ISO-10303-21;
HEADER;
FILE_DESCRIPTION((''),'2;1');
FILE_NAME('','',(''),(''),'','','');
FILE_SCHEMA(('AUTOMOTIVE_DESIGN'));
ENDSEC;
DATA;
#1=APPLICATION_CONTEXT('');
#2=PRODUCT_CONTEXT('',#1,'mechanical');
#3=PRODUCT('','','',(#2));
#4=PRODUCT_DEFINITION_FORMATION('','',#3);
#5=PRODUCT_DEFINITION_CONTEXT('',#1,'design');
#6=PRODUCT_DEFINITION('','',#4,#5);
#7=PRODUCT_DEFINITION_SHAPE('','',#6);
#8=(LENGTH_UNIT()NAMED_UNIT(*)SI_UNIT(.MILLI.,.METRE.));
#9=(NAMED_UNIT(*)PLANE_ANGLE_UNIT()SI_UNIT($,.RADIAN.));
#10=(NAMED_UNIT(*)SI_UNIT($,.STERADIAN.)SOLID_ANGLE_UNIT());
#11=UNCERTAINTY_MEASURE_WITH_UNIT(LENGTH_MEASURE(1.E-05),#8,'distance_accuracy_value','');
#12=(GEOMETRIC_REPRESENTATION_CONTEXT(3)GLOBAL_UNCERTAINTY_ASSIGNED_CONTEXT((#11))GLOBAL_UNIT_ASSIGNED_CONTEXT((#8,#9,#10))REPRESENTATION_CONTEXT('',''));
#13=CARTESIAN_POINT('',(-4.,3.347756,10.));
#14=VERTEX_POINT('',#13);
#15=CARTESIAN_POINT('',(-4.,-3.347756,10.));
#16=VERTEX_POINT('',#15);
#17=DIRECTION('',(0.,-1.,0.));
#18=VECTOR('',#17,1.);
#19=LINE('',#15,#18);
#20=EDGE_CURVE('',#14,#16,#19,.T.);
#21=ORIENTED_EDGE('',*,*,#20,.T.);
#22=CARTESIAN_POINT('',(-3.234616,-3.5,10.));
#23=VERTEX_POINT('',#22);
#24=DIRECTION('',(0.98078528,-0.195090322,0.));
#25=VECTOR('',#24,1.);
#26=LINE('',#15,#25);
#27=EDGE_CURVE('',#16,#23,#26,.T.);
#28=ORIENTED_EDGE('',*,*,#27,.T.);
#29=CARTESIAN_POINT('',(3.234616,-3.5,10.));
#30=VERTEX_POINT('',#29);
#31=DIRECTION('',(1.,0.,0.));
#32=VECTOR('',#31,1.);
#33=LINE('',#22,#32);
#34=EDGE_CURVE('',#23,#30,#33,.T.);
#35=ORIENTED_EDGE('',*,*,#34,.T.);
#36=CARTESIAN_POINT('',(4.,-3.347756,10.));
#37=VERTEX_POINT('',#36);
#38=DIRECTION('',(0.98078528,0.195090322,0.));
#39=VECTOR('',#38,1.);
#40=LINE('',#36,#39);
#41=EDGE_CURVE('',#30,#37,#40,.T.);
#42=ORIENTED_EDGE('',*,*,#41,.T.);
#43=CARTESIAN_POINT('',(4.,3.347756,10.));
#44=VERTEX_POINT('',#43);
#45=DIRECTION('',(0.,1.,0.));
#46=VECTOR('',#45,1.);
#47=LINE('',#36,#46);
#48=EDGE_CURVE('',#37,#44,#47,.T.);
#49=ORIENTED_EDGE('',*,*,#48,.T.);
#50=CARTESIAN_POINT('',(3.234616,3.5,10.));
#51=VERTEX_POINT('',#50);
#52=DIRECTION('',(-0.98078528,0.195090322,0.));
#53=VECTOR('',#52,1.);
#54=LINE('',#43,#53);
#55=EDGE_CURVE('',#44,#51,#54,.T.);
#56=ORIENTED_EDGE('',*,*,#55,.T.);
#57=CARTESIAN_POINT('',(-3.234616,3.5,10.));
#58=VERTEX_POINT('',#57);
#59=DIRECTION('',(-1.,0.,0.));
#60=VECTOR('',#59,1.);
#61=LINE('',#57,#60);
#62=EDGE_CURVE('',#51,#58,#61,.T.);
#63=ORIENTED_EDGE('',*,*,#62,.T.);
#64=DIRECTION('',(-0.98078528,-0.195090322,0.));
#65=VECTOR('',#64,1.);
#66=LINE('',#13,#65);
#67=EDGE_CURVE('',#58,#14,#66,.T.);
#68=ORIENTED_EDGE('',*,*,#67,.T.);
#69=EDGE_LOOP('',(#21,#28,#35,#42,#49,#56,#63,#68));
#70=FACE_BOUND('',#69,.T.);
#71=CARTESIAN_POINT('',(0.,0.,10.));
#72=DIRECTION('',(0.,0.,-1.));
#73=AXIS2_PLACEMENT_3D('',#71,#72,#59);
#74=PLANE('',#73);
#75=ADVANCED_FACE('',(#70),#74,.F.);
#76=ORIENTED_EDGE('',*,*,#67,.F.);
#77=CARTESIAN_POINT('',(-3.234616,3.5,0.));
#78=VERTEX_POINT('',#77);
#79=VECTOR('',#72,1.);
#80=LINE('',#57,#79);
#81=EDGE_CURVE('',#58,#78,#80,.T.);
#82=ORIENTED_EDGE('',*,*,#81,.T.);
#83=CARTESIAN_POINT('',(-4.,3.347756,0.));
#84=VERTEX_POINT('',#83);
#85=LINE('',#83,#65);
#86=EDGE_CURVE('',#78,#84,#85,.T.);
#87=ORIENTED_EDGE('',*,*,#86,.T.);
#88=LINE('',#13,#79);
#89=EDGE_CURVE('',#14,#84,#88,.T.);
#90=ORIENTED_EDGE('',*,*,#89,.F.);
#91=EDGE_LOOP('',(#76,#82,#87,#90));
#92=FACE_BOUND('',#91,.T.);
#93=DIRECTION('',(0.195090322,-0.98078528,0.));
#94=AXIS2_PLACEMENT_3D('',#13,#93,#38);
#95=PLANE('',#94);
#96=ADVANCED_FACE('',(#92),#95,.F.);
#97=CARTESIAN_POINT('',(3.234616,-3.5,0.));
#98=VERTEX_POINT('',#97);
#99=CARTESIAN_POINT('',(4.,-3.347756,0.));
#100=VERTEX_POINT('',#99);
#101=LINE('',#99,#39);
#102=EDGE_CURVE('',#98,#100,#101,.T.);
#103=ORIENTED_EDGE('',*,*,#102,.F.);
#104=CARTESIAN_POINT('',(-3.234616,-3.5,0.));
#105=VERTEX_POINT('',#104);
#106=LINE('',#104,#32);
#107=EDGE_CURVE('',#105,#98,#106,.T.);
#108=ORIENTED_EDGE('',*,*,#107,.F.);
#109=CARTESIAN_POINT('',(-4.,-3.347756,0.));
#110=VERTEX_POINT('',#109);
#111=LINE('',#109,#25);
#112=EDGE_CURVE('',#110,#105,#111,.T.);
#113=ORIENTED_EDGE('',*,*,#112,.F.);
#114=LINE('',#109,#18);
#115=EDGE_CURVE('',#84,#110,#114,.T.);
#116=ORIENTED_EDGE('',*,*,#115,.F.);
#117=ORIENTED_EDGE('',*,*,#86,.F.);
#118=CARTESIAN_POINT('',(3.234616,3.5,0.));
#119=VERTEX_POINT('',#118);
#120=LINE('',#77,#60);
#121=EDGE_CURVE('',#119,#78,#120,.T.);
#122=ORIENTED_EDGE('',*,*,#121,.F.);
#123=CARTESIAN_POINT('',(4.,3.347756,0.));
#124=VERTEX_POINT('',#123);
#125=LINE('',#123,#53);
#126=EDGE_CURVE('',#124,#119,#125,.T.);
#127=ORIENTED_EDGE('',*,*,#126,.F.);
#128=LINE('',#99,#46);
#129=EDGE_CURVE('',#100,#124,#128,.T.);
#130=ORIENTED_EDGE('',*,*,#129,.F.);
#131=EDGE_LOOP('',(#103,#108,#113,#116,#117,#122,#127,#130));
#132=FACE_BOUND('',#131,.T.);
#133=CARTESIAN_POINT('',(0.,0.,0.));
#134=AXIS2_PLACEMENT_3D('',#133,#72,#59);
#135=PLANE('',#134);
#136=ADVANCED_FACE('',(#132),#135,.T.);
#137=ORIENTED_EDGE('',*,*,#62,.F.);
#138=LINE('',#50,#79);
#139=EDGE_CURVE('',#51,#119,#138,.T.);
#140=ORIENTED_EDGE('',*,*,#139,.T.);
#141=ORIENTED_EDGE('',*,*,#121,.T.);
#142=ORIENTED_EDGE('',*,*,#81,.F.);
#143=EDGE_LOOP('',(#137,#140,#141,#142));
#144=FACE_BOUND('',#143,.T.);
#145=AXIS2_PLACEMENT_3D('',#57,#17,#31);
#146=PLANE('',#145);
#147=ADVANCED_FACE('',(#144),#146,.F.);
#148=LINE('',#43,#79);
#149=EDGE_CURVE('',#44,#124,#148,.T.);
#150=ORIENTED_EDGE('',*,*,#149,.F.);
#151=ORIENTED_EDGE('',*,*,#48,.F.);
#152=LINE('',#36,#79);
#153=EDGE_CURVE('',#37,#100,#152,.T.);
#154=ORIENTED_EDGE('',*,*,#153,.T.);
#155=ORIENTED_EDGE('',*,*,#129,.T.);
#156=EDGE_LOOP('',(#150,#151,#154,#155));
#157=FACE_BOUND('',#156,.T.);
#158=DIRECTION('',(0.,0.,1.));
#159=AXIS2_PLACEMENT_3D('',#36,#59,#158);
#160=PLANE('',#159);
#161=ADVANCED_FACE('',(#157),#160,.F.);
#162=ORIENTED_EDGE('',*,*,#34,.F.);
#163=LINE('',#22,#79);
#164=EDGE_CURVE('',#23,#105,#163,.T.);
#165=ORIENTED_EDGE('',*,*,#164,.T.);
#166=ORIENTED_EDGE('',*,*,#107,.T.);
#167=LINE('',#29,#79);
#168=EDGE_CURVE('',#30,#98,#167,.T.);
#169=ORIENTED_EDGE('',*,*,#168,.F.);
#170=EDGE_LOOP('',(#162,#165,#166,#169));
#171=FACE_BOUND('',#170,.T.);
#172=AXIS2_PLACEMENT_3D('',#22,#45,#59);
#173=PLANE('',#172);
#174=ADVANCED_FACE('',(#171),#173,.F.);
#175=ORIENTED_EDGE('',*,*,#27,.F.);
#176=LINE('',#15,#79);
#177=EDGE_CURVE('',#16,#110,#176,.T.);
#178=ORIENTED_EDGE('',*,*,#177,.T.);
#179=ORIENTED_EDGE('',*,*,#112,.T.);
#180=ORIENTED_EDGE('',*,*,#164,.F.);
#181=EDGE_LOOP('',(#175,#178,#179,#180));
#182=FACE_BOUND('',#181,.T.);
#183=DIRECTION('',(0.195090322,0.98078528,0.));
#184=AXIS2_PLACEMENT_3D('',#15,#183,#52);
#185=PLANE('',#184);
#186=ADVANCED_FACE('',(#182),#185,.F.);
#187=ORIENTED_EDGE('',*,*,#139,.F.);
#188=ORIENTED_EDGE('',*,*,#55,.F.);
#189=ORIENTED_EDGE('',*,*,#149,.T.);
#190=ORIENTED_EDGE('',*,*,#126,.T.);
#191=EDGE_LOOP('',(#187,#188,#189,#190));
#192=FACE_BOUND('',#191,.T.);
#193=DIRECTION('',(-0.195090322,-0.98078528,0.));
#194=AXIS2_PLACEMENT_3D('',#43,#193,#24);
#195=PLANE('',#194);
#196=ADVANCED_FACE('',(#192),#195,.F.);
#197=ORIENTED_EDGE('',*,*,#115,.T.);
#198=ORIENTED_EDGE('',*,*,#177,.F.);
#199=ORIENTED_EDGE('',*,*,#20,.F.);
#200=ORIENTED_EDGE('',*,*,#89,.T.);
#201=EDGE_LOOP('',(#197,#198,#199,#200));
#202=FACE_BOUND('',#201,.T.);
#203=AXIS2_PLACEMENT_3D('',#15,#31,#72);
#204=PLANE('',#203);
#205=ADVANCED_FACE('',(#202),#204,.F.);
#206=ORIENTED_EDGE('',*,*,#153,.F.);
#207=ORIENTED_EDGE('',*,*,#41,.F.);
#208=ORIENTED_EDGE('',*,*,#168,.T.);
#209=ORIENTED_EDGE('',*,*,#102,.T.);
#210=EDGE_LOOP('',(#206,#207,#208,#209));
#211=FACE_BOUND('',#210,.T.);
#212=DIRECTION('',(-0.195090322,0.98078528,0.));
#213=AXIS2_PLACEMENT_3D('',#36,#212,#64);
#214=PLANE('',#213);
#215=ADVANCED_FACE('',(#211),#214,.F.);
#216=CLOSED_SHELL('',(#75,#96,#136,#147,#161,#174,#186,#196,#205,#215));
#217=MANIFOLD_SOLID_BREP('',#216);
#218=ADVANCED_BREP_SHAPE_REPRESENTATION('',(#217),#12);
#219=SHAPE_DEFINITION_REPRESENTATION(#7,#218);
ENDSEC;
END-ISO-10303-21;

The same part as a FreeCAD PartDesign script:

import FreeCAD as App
import Part
import Sketcher
Q = App.Units.Quantity

doc = App.newDocument("Part")
body = doc.addObject("PartDesign::Body", "Body")

sketch1 = doc.addObject("Sketcher::SketchObject", "Sketch")
body.addObject(sketch1)
sketch1.AttachmentSupport = (doc.XY_Plane, [""])
sketch1.MapMode = "FlatFace"
sketch1.addGeometry(Part.LineSegment(App.Vector(4, 3.3, 0), App.Vector(3.2, 3.5, 0)), False)
sketch1.addGeometry(Part.LineSegment(App.Vector(3.2, 3.5, 0), App.Vector(-3.2, 3.5, 0)), False)
sketch1.addGeometry(Part.LineSegment(App.Vector(-3.2, 3.5, 0), App.Vector(-4, 3.3, 0)), False)
sketch1.addGeometry(Part.LineSegment(App.Vector(-4, 3.3, 0), App.Vector(-4, -3.3, 0)), False)
sketch1.addGeometry(Part.LineSegment(App.Vector(-4, -3.3, 0), App.Vector(-3.2, -3.5, 0)), False)
sketch1.addGeometry(Part.LineSegment(App.Vector(-3.2, -3.5, 0), App.Vector(3.2, -3.5, 0)), False)
sketch1.addGeometry(Part.LineSegment(App.Vector(3.2, -3.5, 0), App.Vector(4, -3.3, 0)), False)
sketch1.addGeometry(Part.LineSegment(App.Vector(4, -3.3, 0), App.Vector(4, 3.3, 0)), False)
sketch1.addConstraint(Sketcher.Constraint("Coincident", 0, 2, 1, 1))
sketch1.addConstraint(Sketcher.Constraint("Coincident", 1, 2, 2, 1))
sketch1.addConstraint(Sketcher.Constraint("Coincident", 2, 2, 3, 1))
sketch1.addConstraint(Sketcher.Constraint("Coincident", 3, 2, 4, 1))
sketch1.addConstraint(Sketcher.Constraint("Coincident", 4, 2, 5, 1))
sketch1.addConstraint(Sketcher.Constraint("Coincident", 5, 2, 6, 1))
sketch1.addConstraint(Sketcher.Constraint("Coincident", 6, 2, 7, 1))
sketch1.addConstraint(Sketcher.Constraint("Coincident", 7, 2, 0, 1))
sketch1.addConstraint(Sketcher.Constraint("Horizontal", 1))
sketch1.addConstraint(Sketcher.Constraint("Vertical", 3))
sketch1.addConstraint(Sketcher.Constraint("Horizontal", 5))
sketch1.addConstraint(Sketcher.Constraint("Vertical", 7))
sketch1.addConstraint(Sketcher.Constraint("Symmetric", 0, 2, 4, 2, -1, 1))
sketch1.addConstraint(Sketcher.Constraint("Symmetric", 2, 2, 6, 2, -1, 1))
sketch1.addConstraint(Sketcher.Constraint("Parallel", 0, 4))
sketch1.addConstraint(Sketcher.Constraint("Parallel", 2, 6))
sketch1.addConstraint(Sketcher.Constraint("Horizontal", 3, 2, 6, 2))
sketch1.addConstraint(Sketcher.Constraint("Vertical", 1, 2, 4, 2))
sketch1.addConstraint(Sketcher.Constraint("DistanceX", 2, 2, -1, 1, Q("4 mm")))
sketch1.addConstraint(Sketcher.Constraint("DistanceY", 4, 2, 1, 2, Q("7 mm")))
sketch1.addConstraint(Sketcher.Constraint("Angle", 0, Q("168.75 deg")))
sketch1.addConstraint(Sketcher.Constraint("DistanceY", 3, 2, 3, 1, Q("6.695511 mm")))
pad1 = doc.addObject("PartDesign::Pad", "Pad")
body.addObject(pad1)
pad1.Profile = sketch1
pad1.Length = 10

doc.recompute()
